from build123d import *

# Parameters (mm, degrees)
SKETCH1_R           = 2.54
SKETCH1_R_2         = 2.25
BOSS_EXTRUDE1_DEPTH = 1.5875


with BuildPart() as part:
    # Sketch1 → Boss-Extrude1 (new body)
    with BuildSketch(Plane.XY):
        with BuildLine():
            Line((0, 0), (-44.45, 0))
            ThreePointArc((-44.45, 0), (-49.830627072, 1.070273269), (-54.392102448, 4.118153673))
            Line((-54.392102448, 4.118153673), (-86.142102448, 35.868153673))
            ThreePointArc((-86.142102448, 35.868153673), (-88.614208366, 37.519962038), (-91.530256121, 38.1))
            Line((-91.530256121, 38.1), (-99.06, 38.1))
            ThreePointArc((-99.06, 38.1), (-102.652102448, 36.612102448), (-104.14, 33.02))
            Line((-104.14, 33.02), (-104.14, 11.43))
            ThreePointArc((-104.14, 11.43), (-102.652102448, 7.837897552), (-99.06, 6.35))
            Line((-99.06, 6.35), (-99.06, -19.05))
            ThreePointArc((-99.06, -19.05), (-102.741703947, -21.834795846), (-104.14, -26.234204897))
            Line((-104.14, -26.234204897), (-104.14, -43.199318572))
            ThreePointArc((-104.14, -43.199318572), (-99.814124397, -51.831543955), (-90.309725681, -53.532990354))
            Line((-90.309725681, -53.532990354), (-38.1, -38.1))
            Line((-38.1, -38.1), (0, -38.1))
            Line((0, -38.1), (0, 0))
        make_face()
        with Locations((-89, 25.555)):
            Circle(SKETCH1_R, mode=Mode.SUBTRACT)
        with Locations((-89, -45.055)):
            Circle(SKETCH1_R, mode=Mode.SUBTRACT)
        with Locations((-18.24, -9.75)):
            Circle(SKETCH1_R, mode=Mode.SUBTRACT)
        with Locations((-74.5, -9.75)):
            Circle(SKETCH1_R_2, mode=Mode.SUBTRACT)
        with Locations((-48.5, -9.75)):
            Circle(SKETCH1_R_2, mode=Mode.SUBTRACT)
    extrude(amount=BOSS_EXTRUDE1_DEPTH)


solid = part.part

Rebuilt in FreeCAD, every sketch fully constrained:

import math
import FreeCAD as App
import Part
import Sketcher
from FreeCAD import Vector
Q = App.Units.Quantity

doc = App.newDocument("Part")
body = doc.addObject("PartDesign::Body", "Body")

sketch1 = body.newObject("Sketcher::SketchObject", "Sketch")
sketch1.AttachmentSupport = (doc.getObject("XY_Plane"), [""])
sketch1.MapMode = "FlatFace"
sketch1.addGeometry([
    Part.LineSegment(Vector(0, 0, 0), Vector(-44.45, 0, 0)),
    Part.ArcOfCircle(Part.Circle(Vector(-44.45, 14.060256, 0), Vector(0, 0, 1), 14.060256), math.radians(-135), math.radians(-90)),
    Part.LineSegment(Vector(-54.392102, 4.118154, 0), Vector(-86.142102, 35.868154, 0)),
    Part.ArcOfCircle(Part.Circle(Vector(-91.530256, 30.48, 0), Vector(0, 0, 1), 7.62), math.radians(45), math.radians(90)),
    Part.LineSegment(Vector(-91.530256, 38.1, 0), Vector(-99.06, 38.1, 0)),
    Part.ArcOfCircle(Part.Circle(Vector(-99.06, 33.02, 0), Vector(0, 0, 1), 5.08), math.radians(90), math.radians(180)),
    Part.LineSegment(Vector(-104.14, 33.02, 0), Vector(-104.14, 11.43, 0)),
    Part.ArcOfCircle(Part.Circle(Vector(-99.06, 11.43, 0), Vector(0, 0, 1), 5.08), math.radians(-180), math.radians(-90)),
    Part.LineSegment(Vector(-99.06, 6.35, 0), Vector(-99.06, -19.05, 0)),
    Part.ArcOfCircle(Part.Circle(Vector(-96.52, -26.234205, 0), Vector(0, 0, 1), 7.62), math.radians(109.471221), math.radians(180)),
    Part.LineSegment(Vector(-104.14, -26.234205, 0), Vector(-104.14, -43.199319, 0)),
    Part.ArcOfCircle(Part.Circle(Vector(-93.364319, -43.199319, 0), Vector(0, 0, 1), 10.775681), math.radians(180), math.radians(286.467473)),
    Part.LineSegment(Vector(-90.309726, -53.53299, 0), Vector(-38.1, -38.1, 0)),
    Part.LineSegment(Vector(-38.1, -38.1, 0), Vector(0, -38.1, 0)),
    Part.LineSegment(Vector(0, -38.1, 0), Vector(0, 0, 0)),
    Part.Circle(Vector(-89, -45.055, 0), Vector(0, 0, 1), 2.54),
    Part.Circle(Vector(-74.5, -9.75, 0), Vector(0, 0, 1), 2.25),
    Part.Circle(Vector(-48.5, -9.75, 0), Vector(0, 0, 1), 2.25),
    Part.Circle(Vector(-18.24, -9.75, 0), Vector(0, 0, 1), 2.54),
    Part.Circle(Vector(-89, 25.555, 0), Vector(0, 0, 1), 2.54),
], False)
sketch1.addConstraint([
    Sketcher.Constraint("Tangent", 0, 2, 1, 2),
    Sketcher.Constraint("Tangent", 1, 1, 2, 1),
    Sketcher.Constraint("Tangent", 2, 2, 3, 1),
    Sketcher.Constraint("Tangent", 3, 2, 4, 1),
    Sketcher.Constraint("Tangent", 4, 2, 5, 1),
    Sketcher.Constraint("Tangent", 5, 2, 6, 1),
    Sketcher.Constraint("Tangent", 6, 2, 7, 1),
    Sketcher.Constraint("Coincident", 7, 2, 8, 1),
    Sketcher.Constraint("Coincident", 8, 2, 9, 1),
    Sketcher.Constraint("Tangent", 9, 2, 10, 1),
    Sketcher.Constraint("Tangent", 10, 2, 11, 1),
    Sketcher.Constraint("Tangent", 11, 2, 12, 1),
    Sketcher.Constraint("Coincident", 12, 2, 13, 1),
    Sketcher.Constraint("Coincident", 13, 2, 14, 1),
    Sketcher.Constraint("Coincident", 14, 2, 0, 1),
    Sketcher.Constraint("Horizontal", 0),
    Sketcher.Constraint("Horizontal", 4),
    Sketcher.Constraint("Vertical", 6),
    Sketcher.Constraint("Vertical", 8),
    Sketcher.Constraint("Vertical", 10),
    Sketcher.Constraint("Horizontal", 13),
    Sketcher.Constraint("Vertical", 14),
    Sketcher.Constraint("Coincident", 14, 2, -1, 1),
    Sketcher.Constraint("Equal", 5, 7),
    Sketcher.Constraint("Equal", 3, 9),
    Sketcher.Constraint("Equal", 16, 17),
    Sketcher.Constraint("Equal", 15, 18),
    Sketcher.Constraint("Equal", 18, 19),
    Sketcher.Constraint("Horizontal", 16, 3, 17, 3),
    Sketcher.Constraint("Horizontal", 17, 3, 18, 3),
    Sketcher.Constraint("Vertical", 15, 3, 19, 3),
    Sketcher.Constraint("Vertical", 4, 2, 7, 2),
    Sketcher.Constraint("Vertical", 6, 2, 9, 2),
    Sketcher.Constraint("Equal", 13, 14),
    Sketcher.Constraint("Diameter", 15, Q("0.2 in")),
    Sketcher.Constraint("Radius", 3, Q("0.3 in")),
    Sketcher.Constraint("Radius", 5, Q("0.2 in")),
    Sketcher.Constraint("DistanceY", 8, 2, 8, 1, Q("1 in")),
    Sketcher.Constraint("DistanceX", 13, 1, 13, 2, Q("1.5 in")),
    Sketcher.Constraint("Angle", 2, Q("135 deg")),
    Sketcher.Constraint("DistanceX", 0, 2, 0, 1, Q("1.75 in")),
    Sketcher.Constraint("DistanceY", 6, 2, 6, 1, Q("0.85 in")),
    Sketcher.Constraint("DistanceY", -1, 1, 3, 3, Q("1.2 in")),
    Sketcher.Constraint("DistanceX", 5, 3, -1, 1, Q("3.9 in")),
    Sketcher.Constraint("Diameter", 16, 4.5),
    Sketcher.Constraint("DistanceX", 2, 2, 1, 1, Q("1.25 in")),
    Sketcher.Constraint("Radius", 11, 10.775681),
    Sketcher.Constraint("DistanceX", 15, 3, -1, 1, 89.0),
    Sketcher.Constraint("DistanceY", 15, 3, -1, 1, 45.055),
    Sketcher.Constraint("DistanceX", 16, 3, -1, 1, 74.5),
    Sketcher.Constraint("DistanceY", 16, 3, -1, 1, 9.75),
    Sketcher.Constraint("DistanceX", 17, 3, -1, 1, 48.5),
    Sketcher.Constraint("DistanceX", 18, 3, -1, 1, 18.24),
    Sketcher.Constraint("DistanceY", -1, 1, 19, 3, 25.555),
    Sketcher.Constraint("Distance", 12, 54.44293),
])
pad1 = body.newObject("PartDesign::Pad", "Pad")
pad1.Profile = sketch1
pad1.Length = Q("0.0625 in")

doc.recompute()
